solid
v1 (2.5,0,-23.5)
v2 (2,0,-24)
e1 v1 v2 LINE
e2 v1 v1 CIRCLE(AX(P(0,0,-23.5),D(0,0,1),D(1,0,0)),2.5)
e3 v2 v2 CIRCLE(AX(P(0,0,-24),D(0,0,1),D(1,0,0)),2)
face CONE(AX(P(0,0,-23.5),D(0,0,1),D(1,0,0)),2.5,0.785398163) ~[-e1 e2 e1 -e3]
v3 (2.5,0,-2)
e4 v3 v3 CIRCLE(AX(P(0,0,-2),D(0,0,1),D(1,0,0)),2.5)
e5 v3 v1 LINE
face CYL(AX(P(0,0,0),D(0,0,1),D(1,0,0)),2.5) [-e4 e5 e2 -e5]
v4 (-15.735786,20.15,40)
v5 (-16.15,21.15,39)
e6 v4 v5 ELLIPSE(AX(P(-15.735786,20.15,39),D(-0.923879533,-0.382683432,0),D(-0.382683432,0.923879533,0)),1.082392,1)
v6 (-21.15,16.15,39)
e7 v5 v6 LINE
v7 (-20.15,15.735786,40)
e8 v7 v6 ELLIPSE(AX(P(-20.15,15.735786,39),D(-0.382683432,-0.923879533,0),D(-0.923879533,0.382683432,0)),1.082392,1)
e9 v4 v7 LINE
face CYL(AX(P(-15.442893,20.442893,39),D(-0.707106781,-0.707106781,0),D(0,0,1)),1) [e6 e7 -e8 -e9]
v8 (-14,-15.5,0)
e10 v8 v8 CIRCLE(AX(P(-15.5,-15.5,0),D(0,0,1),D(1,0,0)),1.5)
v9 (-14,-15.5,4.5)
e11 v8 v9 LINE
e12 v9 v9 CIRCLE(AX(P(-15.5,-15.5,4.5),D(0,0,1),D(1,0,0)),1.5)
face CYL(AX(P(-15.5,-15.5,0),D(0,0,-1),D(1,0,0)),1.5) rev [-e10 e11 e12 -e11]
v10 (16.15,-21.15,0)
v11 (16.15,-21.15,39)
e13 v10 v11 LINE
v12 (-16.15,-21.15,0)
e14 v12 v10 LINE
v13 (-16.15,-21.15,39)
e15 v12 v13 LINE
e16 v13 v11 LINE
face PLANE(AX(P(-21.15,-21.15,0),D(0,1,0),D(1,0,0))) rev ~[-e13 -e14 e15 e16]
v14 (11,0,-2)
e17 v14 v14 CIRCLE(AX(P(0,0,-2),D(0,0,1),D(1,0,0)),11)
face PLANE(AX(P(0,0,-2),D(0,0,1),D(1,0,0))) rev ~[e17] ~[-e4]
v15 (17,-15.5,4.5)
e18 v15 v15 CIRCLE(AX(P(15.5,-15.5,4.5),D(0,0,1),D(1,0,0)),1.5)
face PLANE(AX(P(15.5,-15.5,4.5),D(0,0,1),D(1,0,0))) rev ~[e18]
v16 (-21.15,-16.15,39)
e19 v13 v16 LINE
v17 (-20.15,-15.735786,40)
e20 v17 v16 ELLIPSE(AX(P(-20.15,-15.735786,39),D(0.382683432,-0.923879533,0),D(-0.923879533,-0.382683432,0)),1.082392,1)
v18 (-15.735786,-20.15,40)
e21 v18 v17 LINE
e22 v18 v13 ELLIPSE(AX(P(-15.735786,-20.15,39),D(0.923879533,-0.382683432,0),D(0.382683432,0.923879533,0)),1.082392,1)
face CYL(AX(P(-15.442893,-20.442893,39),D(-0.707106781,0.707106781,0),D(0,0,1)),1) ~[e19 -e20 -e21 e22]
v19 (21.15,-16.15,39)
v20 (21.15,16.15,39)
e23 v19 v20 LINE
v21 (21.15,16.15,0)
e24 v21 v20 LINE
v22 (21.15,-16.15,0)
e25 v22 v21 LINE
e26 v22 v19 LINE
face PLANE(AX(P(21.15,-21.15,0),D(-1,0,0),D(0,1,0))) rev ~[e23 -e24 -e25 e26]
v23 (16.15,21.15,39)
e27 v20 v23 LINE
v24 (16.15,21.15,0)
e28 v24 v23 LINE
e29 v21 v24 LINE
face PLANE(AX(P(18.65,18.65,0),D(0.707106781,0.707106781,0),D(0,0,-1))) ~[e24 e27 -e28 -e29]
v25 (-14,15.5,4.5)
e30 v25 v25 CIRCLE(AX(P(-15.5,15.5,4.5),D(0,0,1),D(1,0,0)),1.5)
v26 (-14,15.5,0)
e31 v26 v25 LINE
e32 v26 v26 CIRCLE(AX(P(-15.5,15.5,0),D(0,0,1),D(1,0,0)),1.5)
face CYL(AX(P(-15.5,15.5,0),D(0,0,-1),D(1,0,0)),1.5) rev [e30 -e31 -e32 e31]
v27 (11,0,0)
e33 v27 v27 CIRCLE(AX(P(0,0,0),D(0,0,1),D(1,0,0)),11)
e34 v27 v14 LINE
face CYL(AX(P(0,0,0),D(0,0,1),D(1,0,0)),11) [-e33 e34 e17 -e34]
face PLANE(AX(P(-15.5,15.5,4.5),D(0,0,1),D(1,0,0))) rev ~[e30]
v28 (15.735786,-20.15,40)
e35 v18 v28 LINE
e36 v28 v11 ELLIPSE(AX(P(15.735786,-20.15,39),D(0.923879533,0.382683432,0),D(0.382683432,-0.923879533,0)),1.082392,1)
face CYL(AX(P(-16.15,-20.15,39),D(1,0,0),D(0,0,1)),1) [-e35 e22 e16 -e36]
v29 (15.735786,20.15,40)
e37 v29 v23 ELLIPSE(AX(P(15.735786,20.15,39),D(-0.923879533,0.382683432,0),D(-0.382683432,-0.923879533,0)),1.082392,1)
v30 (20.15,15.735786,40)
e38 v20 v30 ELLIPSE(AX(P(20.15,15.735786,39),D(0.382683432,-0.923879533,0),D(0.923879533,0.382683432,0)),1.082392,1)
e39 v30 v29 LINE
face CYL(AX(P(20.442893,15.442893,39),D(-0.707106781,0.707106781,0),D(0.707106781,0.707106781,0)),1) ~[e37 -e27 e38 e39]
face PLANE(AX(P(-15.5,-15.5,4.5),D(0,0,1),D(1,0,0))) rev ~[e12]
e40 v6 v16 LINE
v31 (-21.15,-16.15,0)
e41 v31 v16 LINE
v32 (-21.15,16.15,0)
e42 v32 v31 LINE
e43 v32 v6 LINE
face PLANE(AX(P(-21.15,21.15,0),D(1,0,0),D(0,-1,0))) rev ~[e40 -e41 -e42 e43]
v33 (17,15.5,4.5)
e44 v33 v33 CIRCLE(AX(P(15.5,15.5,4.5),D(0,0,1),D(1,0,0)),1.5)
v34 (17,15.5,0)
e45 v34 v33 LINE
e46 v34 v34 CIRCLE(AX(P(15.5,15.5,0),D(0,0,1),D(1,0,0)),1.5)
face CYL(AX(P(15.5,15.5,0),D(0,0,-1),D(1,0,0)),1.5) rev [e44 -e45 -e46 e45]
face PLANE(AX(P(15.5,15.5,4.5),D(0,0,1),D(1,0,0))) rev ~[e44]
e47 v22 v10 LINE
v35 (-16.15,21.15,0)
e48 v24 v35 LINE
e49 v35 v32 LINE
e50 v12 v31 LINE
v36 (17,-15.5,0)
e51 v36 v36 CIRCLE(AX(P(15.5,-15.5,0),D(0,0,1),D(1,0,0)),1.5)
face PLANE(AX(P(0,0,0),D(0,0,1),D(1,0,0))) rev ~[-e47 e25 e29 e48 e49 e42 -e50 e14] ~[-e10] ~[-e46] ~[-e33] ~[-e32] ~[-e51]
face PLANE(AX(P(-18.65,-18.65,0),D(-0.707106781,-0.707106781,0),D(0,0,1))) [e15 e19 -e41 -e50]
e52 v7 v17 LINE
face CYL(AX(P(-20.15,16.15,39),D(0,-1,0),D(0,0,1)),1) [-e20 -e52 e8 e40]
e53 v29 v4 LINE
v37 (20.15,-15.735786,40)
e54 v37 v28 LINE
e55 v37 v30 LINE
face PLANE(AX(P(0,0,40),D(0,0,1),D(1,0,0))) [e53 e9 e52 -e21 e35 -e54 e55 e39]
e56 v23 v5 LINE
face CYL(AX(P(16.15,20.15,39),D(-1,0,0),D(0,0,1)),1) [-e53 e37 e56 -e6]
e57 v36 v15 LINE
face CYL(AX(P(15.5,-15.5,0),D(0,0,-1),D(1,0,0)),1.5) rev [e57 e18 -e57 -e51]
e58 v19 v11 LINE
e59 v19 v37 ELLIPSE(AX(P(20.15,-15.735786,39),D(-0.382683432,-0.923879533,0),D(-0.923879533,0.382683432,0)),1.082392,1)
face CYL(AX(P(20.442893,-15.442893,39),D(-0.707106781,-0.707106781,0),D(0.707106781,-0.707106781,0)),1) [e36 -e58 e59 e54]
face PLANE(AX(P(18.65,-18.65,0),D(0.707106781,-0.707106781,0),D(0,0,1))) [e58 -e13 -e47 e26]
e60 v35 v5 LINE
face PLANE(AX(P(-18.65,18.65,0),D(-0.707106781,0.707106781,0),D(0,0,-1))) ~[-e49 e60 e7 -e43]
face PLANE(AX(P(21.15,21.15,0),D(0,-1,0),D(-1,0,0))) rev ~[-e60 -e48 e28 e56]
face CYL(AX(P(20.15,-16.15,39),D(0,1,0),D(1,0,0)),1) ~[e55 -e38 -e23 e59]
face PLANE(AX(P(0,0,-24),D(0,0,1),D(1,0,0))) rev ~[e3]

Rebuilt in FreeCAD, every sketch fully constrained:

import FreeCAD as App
import Part
import Sketcher
Q = App.Units.Quantity


def edges_at(feature, points):
    """Names of the edges that pass closest to the given points."""
    edges = feature.Shape.Edges
    near = lambda p: min(range(len(edges)), key=lambda i: edges[i].distToShape(Part.Vertex(*p))[0])
    return sorted({f"Edge{near(p) + 1}" for p in points})

doc = App.newDocument("Part")
body = doc.addObject("PartDesign::Body", "Body")

sketch1 = body.newObject("Sketcher::SketchObject", "Sketch")
sketch1.AttachmentSupport = (doc.getObject("XY_Plane"), [""])
sketch1.MapMode = "FlatFace"
sketch1.addGeometry([
    Part.LineSegment(App.Vector(-21, -21, 0), App.Vector(21, -21, 0)),
    Part.LineSegment(App.Vector(21, -21, 0), App.Vector(21, 21, 0)),
    Part.LineSegment(App.Vector(21, 21, 0), App.Vector(-21, 21, 0)),
    Part.LineSegment(App.Vector(-21, 21, 0), App.Vector(-21, -21, 0)),
], False)
sketch1.addConstraint([
    Sketcher.Constraint("Coincident", 0, 2, 1, 1),
    Sketcher.Constraint("Coincident", 1, 2, 2, 1),
    Sketcher.Constraint("Coincident", 2, 2, 3, 1),
    Sketcher.Constraint("Coincident", 3, 2, 0, 1),
    Sketcher.Constraint("Horizontal", 0),
    Sketcher.Constraint("Vertical", 1),
    Sketcher.Constraint("Horizontal", 2),
    Sketcher.Constraint("Vertical", 3),
    Sketcher.Constraint("Symmetric", 0, 2, 2, 2, -1, 1),
    Sketcher.Constraint("Equal", 2, 1),
    Sketcher.Constraint("DistanceX", 0, 1, 0, 2, Q("42.3 mm")),
])
pad1 = body.newObject("PartDesign::Pad", "Pad")
pad1.Profile = sketch1
pad1.Length = 40

sketch2 = body.newObject("Sketcher::SketchObject", "Sketch001")
sketch2.AttachmentSupport = (doc.getObject("XY_Plane"), [""])
sketch2.MapMode = "FlatFace"
sketch2.addGeometry(Part.Circle(App.Vector(0, 0, 0), App.Vector(0, 0, 1), 11), False)
sketch2.addConstraint([
    Sketcher.Constraint("Coincident", 0, 3, -1, 1),
    Sketcher.Constraint("Diameter", 0, Q("22 mm")),
])
pad2 = body.newObject("PartDesign::Pad", "Pad001")
pad2.Profile = sketch2
pad2.Length = 2
pad2.Reversed = True

sketch3 = body.newObject("Sketcher::SketchObject", "Sketch002")
sketch3.AttachmentSupport = (doc.getObject("XY_Plane"), [""])
sketch3.MapMode = "FlatFace"
sketch3.addGeometry(Part.Circle(App.Vector(0, 0, 0), App.Vector(0, 0, 1), 2.5), False)
sketch3.addConstraint([
    Sketcher.Constraint("Coincident", 0, 3, -1, 1),
    Sketcher.Constraint("Diameter", 0, Q("5 mm")),
])
pad3 = body.newObject("PartDesign::Pad", "Pad002")
pad3.Profile = sketch3
pad3.Length = 24
pad3.Reversed = True

sketch4 = body.newObject("Sketcher::SketchObject", "Sketch003")
sketch4.AttachmentSupport = (doc.getObject("XY_Plane"), [""])
sketch4.MapMode = "FlatFace"
sketch4.addGeometry([
    Part.Circle(App.Vector(15.5, 15.5, 0), App.Vector(0, 0, 1), 1.5),
    Part.Circle(App.Vector(-15.5, 15.5, 0), App.Vector(0, 0, 1), 1.5),
    Part.Circle(App.Vector(-15.5, -15.5, 0), App.Vector(0, 0, 1), 1.5),
    Part.Circle(App.Vector(15.5, -15.5, 0), App.Vector(0, 0, 1), 1.5),
], False)
sketch4.addConstraint([
    Sketcher.Constraint("Equal", 0, 1),
    Sketcher.Constraint("Equal", 1, 2),
    Sketcher.Constraint("Equal", 2, 3),
    Sketcher.Constraint("Symmetric", 0, 3, 2, 3, -1, 1),
    Sketcher.Constraint("Symmetric", 1, 3, 3, 3, -1, 1),
    Sketcher.Constraint("Symmetric", 0, 3, 1, 3, -2),
    Sketcher.Constraint("Diameter", 0, Q("3 mm")),
    Sketcher.Constraint("DistanceX", 1, 3, 0, 3, Q("31 mm")),
    Sketcher.Constraint("DistanceY", 2, 3, 1, 3, Q("31 mm")),
])
pocket1 = body.newObject("PartDesign::Pocket", "Pocket")
pocket1.Profile = sketch4
pocket1.Length = 4.5
pocket1.Reversed = True
doc.recompute()

chamfer = body.newObject("PartDesign::Chamfer", "Chamfer")
chamfer.Base = (pocket1, edges_at(pocket1, [
    (21.15, 21.15, 20),
    (-21.15, 21.15, 20),
    (-21.15, -21.15, 20),
    (21.15, -21.15, 20),
]))
chamfer.Size = 5
doc.recompute()

fillet = body.newObject("PartDesign::Fillet", "Fillet")
fillet.Base = (chamfer, edges_at(chamfer, [
    (0, 21.15, 40),
    (-18.65, 18.65, 40),
    (-21.15, 0, 40),
    (-18.65, -18.65, 40),
    (0, -21.15, 40),
    (18.65, -18.65, 40),
    (21.15, 0, 40),
    (18.65, 18.65, 40),
]))
fillet.Radius = 1
doc.recompute()

chamfer2 = body.newObject("PartDesign::Chamfer", "Chamfer001")
chamfer2.Base = (fillet, edges_at(fillet, [(-2.5, 0, -24)]))
chamfer2.Size = 0.5

doc.recompute()
